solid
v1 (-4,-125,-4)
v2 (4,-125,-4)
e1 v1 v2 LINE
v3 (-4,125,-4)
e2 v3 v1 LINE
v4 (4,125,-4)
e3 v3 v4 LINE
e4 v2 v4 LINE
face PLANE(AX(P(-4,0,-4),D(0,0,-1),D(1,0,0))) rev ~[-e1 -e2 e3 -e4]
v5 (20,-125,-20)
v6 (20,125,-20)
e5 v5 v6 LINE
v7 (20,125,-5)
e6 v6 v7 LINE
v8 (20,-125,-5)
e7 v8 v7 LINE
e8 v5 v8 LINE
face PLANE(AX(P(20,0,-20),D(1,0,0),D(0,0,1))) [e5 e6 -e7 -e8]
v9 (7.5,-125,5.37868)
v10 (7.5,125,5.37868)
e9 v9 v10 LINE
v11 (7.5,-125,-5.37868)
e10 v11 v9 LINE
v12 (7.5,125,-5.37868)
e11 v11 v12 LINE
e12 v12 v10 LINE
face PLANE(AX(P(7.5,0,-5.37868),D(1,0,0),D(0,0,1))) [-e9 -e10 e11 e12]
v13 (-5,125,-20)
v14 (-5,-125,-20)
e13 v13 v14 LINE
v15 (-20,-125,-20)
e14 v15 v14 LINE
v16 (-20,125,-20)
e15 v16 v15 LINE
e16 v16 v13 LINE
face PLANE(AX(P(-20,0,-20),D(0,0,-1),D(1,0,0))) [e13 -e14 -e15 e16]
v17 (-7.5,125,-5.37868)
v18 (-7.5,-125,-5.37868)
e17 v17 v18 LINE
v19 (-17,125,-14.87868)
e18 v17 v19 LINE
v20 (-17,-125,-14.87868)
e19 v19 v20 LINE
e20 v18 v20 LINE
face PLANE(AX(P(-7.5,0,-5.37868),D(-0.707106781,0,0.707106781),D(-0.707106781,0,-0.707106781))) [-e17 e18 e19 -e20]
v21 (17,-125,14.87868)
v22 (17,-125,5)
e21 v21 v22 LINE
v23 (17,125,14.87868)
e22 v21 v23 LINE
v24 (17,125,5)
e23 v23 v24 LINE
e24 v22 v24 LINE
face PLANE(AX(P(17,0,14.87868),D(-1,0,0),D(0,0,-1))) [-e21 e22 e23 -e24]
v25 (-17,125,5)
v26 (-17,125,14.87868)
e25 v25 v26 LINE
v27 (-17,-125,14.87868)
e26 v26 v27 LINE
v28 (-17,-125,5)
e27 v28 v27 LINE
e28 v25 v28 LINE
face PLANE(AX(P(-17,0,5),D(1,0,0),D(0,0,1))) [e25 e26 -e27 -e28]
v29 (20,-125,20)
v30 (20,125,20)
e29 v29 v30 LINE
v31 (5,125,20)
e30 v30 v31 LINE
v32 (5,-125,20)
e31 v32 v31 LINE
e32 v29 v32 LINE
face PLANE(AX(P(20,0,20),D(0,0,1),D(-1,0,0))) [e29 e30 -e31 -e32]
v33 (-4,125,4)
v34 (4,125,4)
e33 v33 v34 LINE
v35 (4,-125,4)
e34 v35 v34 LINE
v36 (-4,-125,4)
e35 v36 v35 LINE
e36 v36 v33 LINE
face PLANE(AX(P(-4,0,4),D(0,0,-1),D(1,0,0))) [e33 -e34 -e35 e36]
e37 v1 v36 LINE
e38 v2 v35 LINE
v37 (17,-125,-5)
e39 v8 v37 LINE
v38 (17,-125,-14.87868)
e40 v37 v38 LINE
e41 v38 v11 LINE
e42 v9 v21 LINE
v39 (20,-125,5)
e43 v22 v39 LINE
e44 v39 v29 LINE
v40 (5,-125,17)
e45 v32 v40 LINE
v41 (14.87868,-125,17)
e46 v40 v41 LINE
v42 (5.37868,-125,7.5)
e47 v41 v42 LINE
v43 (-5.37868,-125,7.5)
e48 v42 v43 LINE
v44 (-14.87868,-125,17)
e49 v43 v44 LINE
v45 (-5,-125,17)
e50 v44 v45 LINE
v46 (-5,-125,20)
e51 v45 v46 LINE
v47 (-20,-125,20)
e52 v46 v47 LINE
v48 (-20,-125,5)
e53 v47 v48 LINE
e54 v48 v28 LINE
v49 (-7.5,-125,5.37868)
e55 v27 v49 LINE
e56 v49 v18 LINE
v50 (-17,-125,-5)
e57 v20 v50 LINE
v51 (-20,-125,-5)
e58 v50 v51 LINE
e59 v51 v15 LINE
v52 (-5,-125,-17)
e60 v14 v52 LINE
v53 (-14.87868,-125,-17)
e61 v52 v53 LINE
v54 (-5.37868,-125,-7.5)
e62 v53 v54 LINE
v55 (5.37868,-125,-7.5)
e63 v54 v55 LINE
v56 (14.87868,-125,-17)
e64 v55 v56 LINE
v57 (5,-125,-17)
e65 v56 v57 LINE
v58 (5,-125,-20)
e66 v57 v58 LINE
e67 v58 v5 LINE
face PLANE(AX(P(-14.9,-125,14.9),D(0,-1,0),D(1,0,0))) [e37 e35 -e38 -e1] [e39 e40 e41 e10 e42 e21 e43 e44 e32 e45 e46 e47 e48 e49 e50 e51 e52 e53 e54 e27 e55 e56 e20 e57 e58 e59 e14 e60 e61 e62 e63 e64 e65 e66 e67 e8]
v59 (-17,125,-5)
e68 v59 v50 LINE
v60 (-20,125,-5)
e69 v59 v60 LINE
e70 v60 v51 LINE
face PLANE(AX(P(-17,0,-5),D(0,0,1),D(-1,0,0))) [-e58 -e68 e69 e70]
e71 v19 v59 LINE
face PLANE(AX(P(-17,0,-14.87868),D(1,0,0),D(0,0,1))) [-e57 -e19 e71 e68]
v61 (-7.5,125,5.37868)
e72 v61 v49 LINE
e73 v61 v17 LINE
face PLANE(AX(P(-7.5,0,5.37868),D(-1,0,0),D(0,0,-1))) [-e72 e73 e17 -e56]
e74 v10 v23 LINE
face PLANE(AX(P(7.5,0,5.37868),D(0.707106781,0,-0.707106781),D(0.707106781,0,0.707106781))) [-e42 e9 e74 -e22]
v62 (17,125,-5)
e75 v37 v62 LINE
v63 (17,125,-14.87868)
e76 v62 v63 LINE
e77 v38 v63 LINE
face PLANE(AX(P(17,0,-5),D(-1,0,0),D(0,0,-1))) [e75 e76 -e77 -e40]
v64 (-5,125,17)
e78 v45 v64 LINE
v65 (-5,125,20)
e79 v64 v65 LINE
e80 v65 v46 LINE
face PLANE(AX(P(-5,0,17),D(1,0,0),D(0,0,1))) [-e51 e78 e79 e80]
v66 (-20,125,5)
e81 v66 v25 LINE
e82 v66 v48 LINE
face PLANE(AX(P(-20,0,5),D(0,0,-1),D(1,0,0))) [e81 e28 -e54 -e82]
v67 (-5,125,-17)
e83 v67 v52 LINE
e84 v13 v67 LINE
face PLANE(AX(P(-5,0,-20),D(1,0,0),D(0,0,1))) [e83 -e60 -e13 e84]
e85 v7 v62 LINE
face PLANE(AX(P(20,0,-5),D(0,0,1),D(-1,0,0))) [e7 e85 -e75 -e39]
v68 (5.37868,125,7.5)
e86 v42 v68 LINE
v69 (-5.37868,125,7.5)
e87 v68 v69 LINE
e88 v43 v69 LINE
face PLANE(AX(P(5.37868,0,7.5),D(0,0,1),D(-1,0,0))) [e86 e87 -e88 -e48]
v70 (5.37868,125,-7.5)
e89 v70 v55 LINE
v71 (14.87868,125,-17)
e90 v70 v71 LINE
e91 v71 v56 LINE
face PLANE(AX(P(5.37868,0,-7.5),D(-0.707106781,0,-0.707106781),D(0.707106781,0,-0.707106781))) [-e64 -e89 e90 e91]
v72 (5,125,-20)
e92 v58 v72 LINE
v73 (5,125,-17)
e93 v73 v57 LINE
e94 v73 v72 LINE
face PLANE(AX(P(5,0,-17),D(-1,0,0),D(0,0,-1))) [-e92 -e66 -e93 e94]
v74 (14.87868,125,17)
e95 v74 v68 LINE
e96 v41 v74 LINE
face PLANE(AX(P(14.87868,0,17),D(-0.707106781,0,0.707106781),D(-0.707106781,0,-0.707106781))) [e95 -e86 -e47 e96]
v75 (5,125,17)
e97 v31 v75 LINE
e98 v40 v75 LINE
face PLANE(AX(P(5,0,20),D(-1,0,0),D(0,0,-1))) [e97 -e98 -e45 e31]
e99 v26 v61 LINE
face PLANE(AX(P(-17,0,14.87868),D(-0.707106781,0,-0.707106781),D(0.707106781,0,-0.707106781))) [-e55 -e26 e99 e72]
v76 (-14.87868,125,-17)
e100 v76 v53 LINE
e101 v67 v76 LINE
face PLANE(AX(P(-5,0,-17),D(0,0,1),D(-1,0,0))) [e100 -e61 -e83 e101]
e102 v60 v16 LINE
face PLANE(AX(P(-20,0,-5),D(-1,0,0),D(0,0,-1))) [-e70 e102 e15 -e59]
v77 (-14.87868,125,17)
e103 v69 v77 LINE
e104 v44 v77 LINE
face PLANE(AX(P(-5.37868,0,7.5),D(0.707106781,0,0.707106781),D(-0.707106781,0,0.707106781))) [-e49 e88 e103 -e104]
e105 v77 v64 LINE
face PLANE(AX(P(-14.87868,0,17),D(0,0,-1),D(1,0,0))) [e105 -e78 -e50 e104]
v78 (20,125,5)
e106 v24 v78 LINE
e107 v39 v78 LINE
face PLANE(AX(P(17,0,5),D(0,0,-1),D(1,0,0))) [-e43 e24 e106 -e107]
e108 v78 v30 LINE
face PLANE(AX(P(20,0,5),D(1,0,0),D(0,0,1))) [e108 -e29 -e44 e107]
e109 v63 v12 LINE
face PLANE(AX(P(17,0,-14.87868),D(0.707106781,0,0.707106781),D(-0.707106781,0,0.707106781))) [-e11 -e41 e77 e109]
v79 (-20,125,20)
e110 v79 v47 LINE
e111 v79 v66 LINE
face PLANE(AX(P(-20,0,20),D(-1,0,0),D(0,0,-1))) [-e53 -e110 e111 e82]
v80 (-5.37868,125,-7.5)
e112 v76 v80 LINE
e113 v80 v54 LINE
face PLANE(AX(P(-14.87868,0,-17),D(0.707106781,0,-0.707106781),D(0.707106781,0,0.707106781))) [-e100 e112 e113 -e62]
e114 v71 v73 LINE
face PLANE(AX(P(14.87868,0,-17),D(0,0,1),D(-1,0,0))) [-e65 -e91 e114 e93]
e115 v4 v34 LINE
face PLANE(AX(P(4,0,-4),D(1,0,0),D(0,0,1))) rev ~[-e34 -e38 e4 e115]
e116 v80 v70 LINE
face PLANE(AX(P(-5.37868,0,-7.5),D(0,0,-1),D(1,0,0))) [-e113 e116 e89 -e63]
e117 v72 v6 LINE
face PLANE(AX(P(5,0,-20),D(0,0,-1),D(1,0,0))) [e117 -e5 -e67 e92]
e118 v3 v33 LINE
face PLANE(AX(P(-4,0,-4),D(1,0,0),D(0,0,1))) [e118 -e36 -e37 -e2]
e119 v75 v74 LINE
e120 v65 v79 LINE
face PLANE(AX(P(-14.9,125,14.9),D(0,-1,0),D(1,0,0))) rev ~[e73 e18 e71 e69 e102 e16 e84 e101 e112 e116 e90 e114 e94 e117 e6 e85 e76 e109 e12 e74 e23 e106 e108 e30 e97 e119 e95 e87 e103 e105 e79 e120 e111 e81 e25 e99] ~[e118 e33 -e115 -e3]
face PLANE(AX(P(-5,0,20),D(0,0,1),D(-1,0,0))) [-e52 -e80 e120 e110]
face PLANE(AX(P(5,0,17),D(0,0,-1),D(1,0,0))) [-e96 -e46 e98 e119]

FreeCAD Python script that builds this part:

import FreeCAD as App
import Part
import Sketcher
from FreeCAD import Vector
Q = App.Units.Quantity


def add_polygon(sketch, points):
    """Adds a closed chain of lines whose ends are joined by coincident constraints."""
    first, n = sketch.GeometryCount, len(points)
    for a, b in zip(points, points[1:] + points[:1]):
        sketch.addGeometry(Part.LineSegment(App.Vector(*a, 0), App.Vector(*b, 0)), False)
    for i in range(n):
        sketch.addConstraint(Sketcher.Constraint("Coincident", first + i, 2, first + (i + 1) % n, 1))

doc = App.newDocument("Part")
body = doc.addObject("PartDesign::Body", "Body")

# Sketch on XZ plane
sketch1 = doc.addObject("Sketcher::SketchObject", "Sketch")
body.addObject(sketch1)
sketch1.AttachmentSupport = (doc.XZ_Plane, [""])
sketch1.MapMode = "FlatFace"
add_polygon(sketch1, [(-5, 17), (-5, 20), (-20, 20), (-20, 5), (-17, 5), (-17, 14.9), (-7.5, 5.4), (-7.5, -5.4), (-17, -14.9), (-17, -5), (-20, -5), (-20, -20), (-5, -20), (-5, -17), (-14.9, -17), (-5.4, -7.5), (5.4, -7.5), (14.9, -17), (5, -17), (5, -20), (20, -20), (20, -5), (17, -5), (17, -14.9), (7.5, -5.4), (7.5, 5.4), (17, 14.9), (17, 5), (20, 5), (20, 20), (5, 20), (5, 17), (14.9, 17), (5.4, 7.5), (-5.4, 7.5), (-14.9, 17)])  # lines 0-35
add_polygon(sketch1, [(4, -4), (-4, -4), (-4, 4), (4, 4)])  # lines 36-39
sketch1.addConstraint(Sketcher.Constraint("Vertical", 0))
sketch1.addConstraint(Sketcher.Constraint("Horizontal", 1))
sketch1.addConstraint(Sketcher.Constraint("Vertical", 2))
sketch1.addConstraint(Sketcher.Constraint("Horizontal", 3))
sketch1.addConstraint(Sketcher.Constraint("Vertical", 4))
sketch1.addConstraint(Sketcher.Constraint("Vertical", 6))
sketch1.addConstraint(Sketcher.Constraint("Vertical", 8))
sketch1.addConstraint(Sketcher.Constraint("Horizontal", 9))
sketch1.addConstraint(Sketcher.Constraint("Vertical", 10))
sketch1.addConstraint(Sketcher.Constraint("Horizontal", 11))
sketch1.addConstraint(Sketcher.Constraint("Vertical", 12))
sketch1.addConstraint(Sketcher.Constraint("Horizontal", 13))
sketch1.addConstraint(Sketcher.Constraint("Horizontal", 15))
sketch1.addConstraint(Sketcher.Constraint("Horizontal", 17))
sketch1.addConstraint(Sketcher.Constraint("Vertical", 18))
sketch1.addConstraint(Sketcher.Constraint("Horizontal", 19))
sketch1.addConstraint(Sketcher.Constraint("Vertical", 20))
sketch1.addConstraint(Sketcher.Constraint("Horizontal", 21))
sketch1.addConstraint(Sketcher.Constraint("Vertical", 22))
sketch1.addConstraint(Sketcher.Constraint("Vertical", 24))
sketch1.addConstraint(Sketcher.Constraint("Vertical", 26))
sketch1.addConstraint(Sketcher.Constraint("Horizontal", 27))
sketch1.addConstraint(Sketcher.Constraint("Vertical", 28))
sketch1.addConstraint(Sketcher.Constraint("Horizontal", 29))
sketch1.addConstraint(Sketcher.Constraint("Vertical", 30))
sketch1.addConstraint(Sketcher.Constraint("Horizontal", 31))
sketch1.addConstraint(Sketcher.Constraint("Horizontal", 33))
sketch1.addConstraint(Sketcher.Constraint("Horizontal", 35))
sketch1.addConstraint(Sketcher.Constraint("Horizontal", 36))
sketch1.addConstraint(Sketcher.Constraint("Vertical", 37))
sketch1.addConstraint(Sketcher.Constraint("Horizontal", 38))
sketch1.addConstraint(Sketcher.Constraint("Vertical", 39))
sketch1.addConstraint(Sketcher.Constraint("Symmetric", 0, 2, 18, 2, -1, 1))
sketch1.addConstraint(Sketcher.Constraint("Symmetric", 2, 2, 20, 2, -1, 1))
sketch1.addConstraint(Sketcher.Constraint("Symmetric", 4, 2, 22, 2, -1, 1))
sketch1.addConstraint(Sketcher.Constraint("Symmetric", 5, 2, 23, 2, -1, 1))
sketch1.addConstraint(Sketcher.Constraint("Symmetric", 7, 2, 25, 2, -1, 1))
sketch1.addConstraint(Sketcher.Constraint("Symmetric", 9, 2, 27, 2, -1, 1))
sketch1.addConstraint(Sketcher.Constraint("Symmetric", 11, 2, 29, 2, -1, 1))
sketch1.addConstraint(Sketcher.Constraint("Symmetric", 13, 2, 31, 2, -1, 1))
sketch1.addConstraint(Sketcher.Constraint("Symmetric", 14, 2, 32, 2, -1, 1))
sketch1.addConstraint(Sketcher.Constraint("Symmetric", 16, 2, 34, 2, -1, 1))
sketch1.addConstraint(Sketcher.Constraint("Symmetric", 36, 2, 38, 2, -1, 1))
sketch1.addConstraint(Sketcher.Constraint("Symmetric", 13, 2, 16, 2, -2))
sketch1.addConstraint(Sketcher.Constraint("Symmetric", 11, 2, 18, 2, -2))
sketch1.addConstraint(Sketcher.Constraint("Symmetric", 9, 2, 20, 2, -2))
sketch1.addConstraint(Sketcher.Constraint("Symmetric", 7, 2, 22, 2, -2))
sketch1.addConstraint(Sketcher.Constraint("Perpendicular", 5, 7))
sketch1.addConstraint(Sketcher.Constraint("Parallel", 7, 14))
sketch1.addConstraint(Sketcher.Constraint("Perpendicular", 14, 16))
sketch1.addConstraint(Sketcher.Constraint("Perpendicular", 23, 25))
sketch1.addConstraint(Sketcher.Constraint("Perpendicular", 32, 34))
sketch1.addConstraint(Sketcher.Constraint("Horizontal", 6, 2, 23, 2))
sketch1.addConstraint(Sketcher.Constraint("Equal", 27, 0))
sketch1.addConstraint(Sketcher.Constraint("Equal", 29, 2))
sketch1.addConstraint(Sketcher.Constraint("Equal", 35, 4))
sketch1.addConstraint(Sketcher.Constraint("Equal", 33, 6))
sketch1.addConstraint(Sketcher.Constraint("Equal", 38, 37))
sketch1.addConstraint(Sketcher.Constraint("Equal", 7, 14))
sketch1.addConstraint(Sketcher.Constraint("DistanceX", 1, 2, 1, 1, Q("15 mm")))
sketch1.addConstraint(Sketcher.Constraint("DistanceX", 3, 1, 3, 2, Q("3 mm")))
sketch1.addConstraint(Sketcher.Constraint("DistanceX", 36, 2, 36, 1, Q("8 mm")))
sketch1.addConstraint(Sketcher.Constraint("DistanceX", 0, 2, -1, 1, Q("5 mm")))
sketch1.addConstraint(Sketcher.Constraint("DistanceX", 5, 2, 24, 2, Q("15 mm")))
sketch1.addConstraint(Sketcher.Constraint("DistanceX", 13, 2, 13, 1, Q("9.87868 mm")))
pad1 = doc.addObject("PartDesign::Pad", "Pad")
body.addObject(pad1)
pad1.Profile = sketch1
pad1.Length = 250
pad1.Midplane = True

doc.recompute()
